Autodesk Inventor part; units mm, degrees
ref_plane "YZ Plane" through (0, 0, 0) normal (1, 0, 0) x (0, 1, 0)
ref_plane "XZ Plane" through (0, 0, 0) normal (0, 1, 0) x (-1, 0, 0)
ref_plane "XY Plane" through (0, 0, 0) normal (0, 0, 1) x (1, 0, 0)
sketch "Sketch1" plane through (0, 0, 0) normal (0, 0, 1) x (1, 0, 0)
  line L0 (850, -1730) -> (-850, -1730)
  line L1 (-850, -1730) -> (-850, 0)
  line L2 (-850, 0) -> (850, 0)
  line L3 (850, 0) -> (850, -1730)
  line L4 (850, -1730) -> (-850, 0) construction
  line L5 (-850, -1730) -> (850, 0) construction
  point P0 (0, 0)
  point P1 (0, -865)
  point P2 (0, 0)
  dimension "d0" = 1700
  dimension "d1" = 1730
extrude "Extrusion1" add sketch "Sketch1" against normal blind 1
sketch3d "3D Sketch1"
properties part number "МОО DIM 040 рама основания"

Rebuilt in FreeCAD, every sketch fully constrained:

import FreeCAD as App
import Part
import Sketcher
from FreeCAD import Vector

doc = App.newDocument("Part")
body = doc.addObject("PartDesign::Body", "Body")

# Sketch on XY plane
sketch1 = body.newObject("Sketcher::SketchObject", "Sketch")
sketch1.AttachmentSupport = (doc.getObject("XY_Plane"), [""])
sketch1.MapMode = "FlatFace"
sketch1.addGeometry(Part.LineSegment(Vector(-850, -1730, 0), Vector(850, -1730, 0)), False)
sketch1.addGeometry(Part.LineSegment(Vector(850, -1730, 0), Vector(850, 0, 0)), False)
sketch1.addGeometry(Part.LineSegment(Vector(850, 0, 0), Vector(-850, 0, 0)), False)
sketch1.addGeometry(Part.LineSegment(Vector(-850, 0, 0), Vector(-850, -1730, 0)), False)
sketch1.addConstraint(Sketcher.Constraint("Coincident", 0, 2, 1, 1))
sketch1.addConstraint(Sketcher.Constraint("Coincident", 1, 2, 2, 1))
sketch1.addConstraint(Sketcher.Constraint("Coincident", 2, 2, 3, 1))
sketch1.addConstraint(Sketcher.Constraint("Coincident", 3, 2, 0, 1))
sketch1.addConstraint(Sketcher.Constraint("Horizontal", 0))
sketch1.addConstraint(Sketcher.Constraint("Vertical", 1))
sketch1.addConstraint(Sketcher.Constraint("Horizontal", 2))
sketch1.addConstraint(Sketcher.Constraint("Vertical", 3))
sketch1.addConstraint(Sketcher.Constraint("Symmetric", 1, 2, 2, 2, -1, 1))
sketch1.addConstraint(Sketcher.Constraint("DistanceX", 0, 1, 0, 2, 1700.0))
sketch1.addConstraint(Sketcher.Constraint("DistanceY", 1, 1, 1, 2, 1730.0))
pad1 = body.newObject("PartDesign::Pad", "Pad")
pad1.Profile = sketch1
pad1.Length = 1
pad1.Reversed = True

doc.recompute()
